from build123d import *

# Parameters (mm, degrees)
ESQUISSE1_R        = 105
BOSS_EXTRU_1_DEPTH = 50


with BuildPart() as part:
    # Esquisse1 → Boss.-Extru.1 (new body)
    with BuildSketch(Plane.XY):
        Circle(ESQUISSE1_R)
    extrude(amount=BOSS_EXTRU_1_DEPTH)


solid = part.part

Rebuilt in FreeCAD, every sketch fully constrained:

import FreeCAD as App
import Part
import Sketcher

doc = App.newDocument("Part")
body = doc.addObject("PartDesign::Body", "Body")

# Sketch on XY plane
sketch1 = body.newObject("Sketcher::SketchObject", "Sketch")
sketch1.AttachmentSupport = (doc.getObject("XY_Plane"), [""])
sketch1.MapMode = "FlatFace"
sketch1.addGeometry(Part.Circle(App.Vector(0, 0, 0), App.Vector(0, 0, 1), 105), False)
sketch1.addConstraint([
    Sketcher.Constraint("Coincident", 0, 3, -1, 1),
    Sketcher.Constraint("Diameter", 0, 210.0),
])
pad1 = body.newObject("PartDesign::Pad", "Pad")
pad1.Profile = sketch1
pad1.Length = 50

doc.recompute()
